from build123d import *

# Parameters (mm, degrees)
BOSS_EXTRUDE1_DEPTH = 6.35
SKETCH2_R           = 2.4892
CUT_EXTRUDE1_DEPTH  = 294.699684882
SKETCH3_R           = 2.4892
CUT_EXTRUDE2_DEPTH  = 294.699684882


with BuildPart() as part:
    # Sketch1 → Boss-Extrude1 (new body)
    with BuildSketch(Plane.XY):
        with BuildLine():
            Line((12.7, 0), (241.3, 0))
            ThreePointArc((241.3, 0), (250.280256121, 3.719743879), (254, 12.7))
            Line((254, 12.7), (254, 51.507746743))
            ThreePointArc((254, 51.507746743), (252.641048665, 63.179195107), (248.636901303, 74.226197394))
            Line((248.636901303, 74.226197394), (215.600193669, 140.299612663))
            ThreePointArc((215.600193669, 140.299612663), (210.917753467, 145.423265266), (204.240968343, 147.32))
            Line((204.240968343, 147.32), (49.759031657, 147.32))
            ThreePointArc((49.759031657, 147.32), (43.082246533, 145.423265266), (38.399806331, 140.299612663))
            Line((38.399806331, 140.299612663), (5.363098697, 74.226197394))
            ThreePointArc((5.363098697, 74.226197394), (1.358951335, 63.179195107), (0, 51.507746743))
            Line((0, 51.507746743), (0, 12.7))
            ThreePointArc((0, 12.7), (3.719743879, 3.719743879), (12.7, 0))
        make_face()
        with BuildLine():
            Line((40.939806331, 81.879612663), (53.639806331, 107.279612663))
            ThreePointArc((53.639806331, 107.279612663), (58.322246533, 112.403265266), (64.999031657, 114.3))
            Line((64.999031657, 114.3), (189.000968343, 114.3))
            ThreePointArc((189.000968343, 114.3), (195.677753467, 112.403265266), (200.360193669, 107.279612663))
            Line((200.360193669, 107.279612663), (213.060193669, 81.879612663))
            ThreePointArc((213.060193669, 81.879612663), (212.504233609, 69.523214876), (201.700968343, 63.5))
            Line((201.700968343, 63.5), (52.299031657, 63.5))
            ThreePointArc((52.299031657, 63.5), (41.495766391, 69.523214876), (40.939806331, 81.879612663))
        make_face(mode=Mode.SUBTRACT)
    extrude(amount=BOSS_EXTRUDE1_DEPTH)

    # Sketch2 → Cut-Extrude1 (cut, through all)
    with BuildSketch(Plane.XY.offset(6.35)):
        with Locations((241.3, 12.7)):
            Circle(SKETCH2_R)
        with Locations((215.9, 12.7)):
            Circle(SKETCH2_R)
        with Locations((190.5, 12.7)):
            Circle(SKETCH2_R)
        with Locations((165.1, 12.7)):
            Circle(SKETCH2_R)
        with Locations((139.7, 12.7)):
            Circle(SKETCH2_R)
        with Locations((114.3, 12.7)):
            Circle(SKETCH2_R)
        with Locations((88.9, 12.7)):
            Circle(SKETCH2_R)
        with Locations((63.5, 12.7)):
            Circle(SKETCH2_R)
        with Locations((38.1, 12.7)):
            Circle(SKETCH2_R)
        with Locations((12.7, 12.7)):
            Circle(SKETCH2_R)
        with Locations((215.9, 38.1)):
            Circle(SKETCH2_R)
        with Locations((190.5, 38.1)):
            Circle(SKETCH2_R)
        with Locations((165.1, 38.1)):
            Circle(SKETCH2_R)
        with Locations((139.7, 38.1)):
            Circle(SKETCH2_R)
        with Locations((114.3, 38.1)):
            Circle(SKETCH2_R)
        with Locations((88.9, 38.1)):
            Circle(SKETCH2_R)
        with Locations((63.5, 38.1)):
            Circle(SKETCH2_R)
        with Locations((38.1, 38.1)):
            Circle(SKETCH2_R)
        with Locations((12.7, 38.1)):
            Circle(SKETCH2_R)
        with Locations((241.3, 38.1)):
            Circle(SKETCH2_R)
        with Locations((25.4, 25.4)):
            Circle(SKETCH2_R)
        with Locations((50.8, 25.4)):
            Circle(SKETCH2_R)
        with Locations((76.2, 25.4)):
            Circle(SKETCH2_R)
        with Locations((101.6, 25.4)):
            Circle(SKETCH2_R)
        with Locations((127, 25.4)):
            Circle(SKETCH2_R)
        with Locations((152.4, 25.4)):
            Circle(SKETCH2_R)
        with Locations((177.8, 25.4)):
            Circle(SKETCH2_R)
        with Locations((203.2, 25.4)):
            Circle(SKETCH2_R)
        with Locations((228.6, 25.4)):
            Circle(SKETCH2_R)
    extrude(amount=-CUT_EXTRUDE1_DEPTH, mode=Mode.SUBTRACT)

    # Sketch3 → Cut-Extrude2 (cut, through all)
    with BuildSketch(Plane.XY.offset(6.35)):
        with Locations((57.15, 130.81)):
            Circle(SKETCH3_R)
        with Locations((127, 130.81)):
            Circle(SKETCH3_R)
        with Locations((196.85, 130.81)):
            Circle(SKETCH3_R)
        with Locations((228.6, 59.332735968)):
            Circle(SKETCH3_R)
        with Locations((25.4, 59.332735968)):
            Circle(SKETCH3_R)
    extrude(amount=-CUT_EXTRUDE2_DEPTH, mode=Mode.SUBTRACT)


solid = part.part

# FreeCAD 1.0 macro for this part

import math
import FreeCAD as App
import Part
import Sketcher
Q = App.Units.Quantity

doc = App.newDocument("Part")
body = doc.addObject("PartDesign::Body", "Body")

sketch1 = body.newObject("Sketcher::SketchObject", "Sketch")
sketch1.AttachmentSupport = (doc.getObject("XY_Plane"), [""])
sketch1.MapMode = "FlatFace"
sketch1.addGeometry([
    Part.LineSegment(App.Vector(13, 0, 0), App.Vector(241, 0, 0)),
    Part.ArcOfCircle(Part.Circle(App.Vector(241, 13, 0), App.Vector(0, 0, 1), 13), math.radians(-90), math.radians(0)),
    Part.LineSegment(App.Vector(254, 13, 0), App.Vector(254, 52, 0)),
    Part.ArcOfCircle(Part.Circle(App.Vector(203, 52, 0), App.Vector(0, 0, 1), 51), math.radians(0), math.radians(27)),
    Part.LineSegment(App.Vector(249, 74, 0), App.Vector(216, 140, 0)),
    Part.ArcOfCircle(Part.Circle(App.Vector(204, 135, 0), App.Vector(0, 0, 1), 13), math.radians(27), math.radians(90)),
    Part.LineSegment(App.Vector(204, 147, 0), App.Vector(50, 147, 0)),
    Part.ArcOfCircle(Part.Circle(App.Vector(50, 135, 0), App.Vector(0, 0, 1), 13), math.radians(90), math.radians(153)),
    Part.LineSegment(App.Vector(38, 140, 0), App.Vector(5, 74, 0)),
    Part.ArcOfCircle(Part.Circle(App.Vector(51, 52, 0), App.Vector(0, 0, 1), 51), math.radians(153), math.radians(180)),
    Part.LineSegment(App.Vector(0, 52, 0), App.Vector(0, 13, 0)),
    Part.ArcOfCircle(Part.Circle(App.Vector(13, 13, 0), App.Vector(0, 0, 1), 13), math.radians(180), math.radians(270)),
    Part.ArcOfCircle(Part.Circle(App.Vector(52, 76, 0), App.Vector(0, 0, 1), 13), math.radians(153), math.radians(270)),
    Part.LineSegment(App.Vector(41, 82, 0), App.Vector(54, 107, 0)),
    Part.ArcOfCircle(Part.Circle(App.Vector(65, 102, 0), App.Vector(0, 0, 1), 13), math.radians(90), math.radians(153)),
    Part.LineSegment(App.Vector(65, 114, 0), App.Vector(189, 114, 0)),
    Part.ArcOfCircle(Part.Circle(App.Vector(189, 102, 0), App.Vector(0, 0, 1), 13), math.radians(27), math.radians(90)),
    Part.LineSegment(App.Vector(200, 107, 0), App.Vector(213, 82, 0)),
    Part.ArcOfCircle(Part.Circle(App.Vector(202, 76, 0), App.Vector(0, 0, 1), 13), math.radians(-90), math.radians(27)),
    Part.LineSegment(App.Vector(202, 64, 0), App.Vector(52, 64, 0)),
], False)
sketch1.addConstraint([
    Sketcher.Constraint("Tangent", 0, 2, 1, 1),
    Sketcher.Constraint("Tangent", 1, 2, 2, 1),
    Sketcher.Constraint("Tangent", 2, 2, 3, 1),
    Sketcher.Constraint("Tangent", 3, 2, 4, 1),
    Sketcher.Constraint("Tangent", 4, 2, 5, 1),
    Sketcher.Constraint("Tangent", 5, 2, 6, 1),
    Sketcher.Constraint("Tangent", 6, 2, 7, 1),
    Sketcher.Constraint("Tangent", 7, 2, 8, 1),
    Sketcher.Constraint("Tangent", 8, 2, 9, 1),
    Sketcher.Constraint("Tangent", 9, 2, 10, 1),
    Sketcher.Constraint("Tangent", 10, 2, 11, 1),
    Sketcher.Constraint("Tangent", 11, 2, 0, 1),
    Sketcher.Constraint("Tangent", 12, 1, 13, 1),
    Sketcher.Constraint("Tangent", 13, 2, 14, 2),
    Sketcher.Constraint("Tangent", 14, 1, 15, 1),
    Sketcher.Constraint("Tangent", 15, 2, 16, 2),
    Sketcher.Constraint("Tangent", 16, 1, 17, 1),
    Sketcher.Constraint("Tangent", 17, 2, 18, 2),
    Sketcher.Constraint("Tangent", 18, 1, 19, 1),
    Sketcher.Constraint("Tangent", 19, 2, 12, 2),
    Sketcher.Constraint("Horizontal", 0),
    Sketcher.Constraint("Vertical", 2),
    Sketcher.Constraint("Horizontal", 6),
    Sketcher.Constraint("Vertical", 10),
    Sketcher.Constraint("Horizontal", 15),
    Sketcher.Constraint("Horizontal", 19),
    Sketcher.Constraint("Equal", 1, 5),
    Sketcher.Constraint("Equal", 5, 7),
    Sketcher.Constraint("Equal", 3, 9),
    Sketcher.Constraint("Equal", 7, 11),
    Sketcher.Constraint("Equal", 11, 12),
    Sketcher.Constraint("Equal", 12, 14),
    Sketcher.Constraint("Equal", 14, 16),
    Sketcher.Constraint("Equal", 16, 18),
    Sketcher.Constraint("PointOnObject", 0, 2, -1),
    Sketcher.Constraint("PointOnObject", 9, 2, -2),
    Sketcher.Constraint("Parallel", 8, 13),
    Sketcher.Constraint("Parallel", 4, 17),
    Sketcher.Constraint("Horizontal", 3, 3, 9, 3),
    Sketcher.Constraint("Horizontal", 4, 2, 7, 2),
    Sketcher.Constraint("Radius", 3, Q("2 in")),
    Sketcher.Constraint("Radius", 1, Q("0.5 in")),
    Sketcher.Constraint("DistanceX", 0, 1, 0, 2, Q("9 in")),
    Sketcher.Constraint("DistanceY", -1, 1, 12, 3, Q("3 in")),
    Sketcher.Constraint("DistanceY", -1, 1, 14, 3, Q("4 in")),
    Sketcher.Constraint("DistanceY", -1, 1, 5, 3, Q("5.3 in")),
    Sketcher.Constraint("DistanceX", 7, 3, 12, 3, Q("0.1 in")),
    Sketcher.Constraint("DistanceX", 12, 3, 14, 3, Q("0.5 in")),
    Sketcher.Constraint("DistanceX", 16, 3, 5, 3, Q("0.6 in")),
    Sketcher.Constraint("DistanceX", 6, 2, 6, 1, Q("154.481937 mm")),
])
pad1 = body.newObject("PartDesign::Pad", "Pad")
pad1.Profile = sketch1
pad1.Length = Q("0.25 in")

sketch2 = body.newObject("Sketcher::SketchObject", "Sketch001")
sketch2.AttachmentSupport = (doc.getObject("XY_Plane"), [""])
sketch2.MapMode = "FlatFace"
sketch2.AttachmentOffset = App.Placement(App.Vector(0, 0, 0.25 * 25.4), App.Rotation())
sketch2.addGeometry([
    Part.Circle(App.Vector(241.3, 12.7, 0), App.Vector(0, 0, 1), 2.5),
    Part.Circle(App.Vector(215.9, 12.7, 0), App.Vector(0, 0, 1), 2.5),
    Part.Circle(App.Vector(190.5, 12.7, 0), App.Vector(0, 0, 1), 2.5),
    Part.Circle(App.Vector(165.1, 12.7, 0), App.Vector(0, 0, 1), 2.5),
    Part.Circle(App.Vector(139.7, 12.7, 0), App.Vector(0, 0, 1), 2.5),
    Part.Circle(App.Vector(114.3, 12.7, 0), App.Vector(0, 0, 1), 2.5),
    Part.Circle(App.Vector(88.9, 12.7, 0), App.Vector(0, 0, 1), 2.5),
    Part.Circle(App.Vector(63.5, 12.7, 0), App.Vector(0, 0, 1), 2.5),
    Part.Circle(App.Vector(38.1, 12.7, 0), App.Vector(0, 0, 1), 2.5),
    Part.Circle(App.Vector(12.7, 12.7, 0), App.Vector(0, 0, 1), 2.5),
    Part.Circle(App.Vector(215.9, 38.1, 0), App.Vector(0, 0, 1), 2.5),
    Part.Circle(App.Vector(190.5, 38.1, 0), App.Vector(0, 0, 1), 2.5),
    Part.Circle(App.Vector(165.1, 38.1, 0), App.Vector(0, 0, 1), 2.5),
    Part.Circle(App.Vector(139.7, 38.1, 0), App.Vector(0, 0, 1), 2.5),
    Part.Circle(App.Vector(114.3, 38.1, 0), App.Vector(0, 0, 1), 2.5),
    Part.Circle(App.Vector(88.9, 38.1, 0), App.Vector(0, 0, 1), 2.5),
    Part.Circle(App.Vector(63.5, 38.1, 0), App.Vector(0, 0, 1), 2.5),
    Part.Circle(App.Vector(38.1, 38.1, 0), App.Vector(0, 0, 1), 2.5),
    Part.Circle(App.Vector(12.7, 38.1, 0), App.Vector(0, 0, 1), 2.5),
    Part.Circle(App.Vector(241.3, 38.1, 0), App.Vector(0, 0, 1), 2.5),
    Part.Circle(App.Vector(25.4, 25.4, 0), App.Vector(0, 0, 1), 2.5),
    Part.Circle(App.Vector(50.8, 25.4, 0), App.Vector(0, 0, 1), 2.5),
    Part.Circle(App.Vector(76.2, 25.4, 0), App.Vector(0, 0, 1), 2.5),
    Part.Circle(App.Vector(101.6, 25.4, 0), App.Vector(0, 0, 1), 2.5),
    Part.Circle(App.Vector(127, 25.4, 0), App.Vector(0, 0, 1), 2.5),
    Part.Circle(App.Vector(152.4, 25.4, 0), App.Vector(0, 0, 1), 2.5),
    Part.Circle(App.Vector(177.8, 25.4, 0), App.Vector(0, 0, 1), 2.5),
    Part.Circle(App.Vector(203.2, 25.4, 0), App.Vector(0, 0, 1), 2.5),
    Part.Circle(App.Vector(228.6, 25.4, 0), App.Vector(0, 0, 1), 2.5),
], False)
sketch2.addConstraint([
    Sketcher.Constraint("Equal", 0, 1),
    Sketcher.Constraint("Equal", 1, 2),
    Sketcher.Constraint("Equal", 2, 3),
    Sketcher.Constraint("Equal", 3, 4),
    Sketcher.Constraint("Equal", 4, 5),
    Sketcher.Constraint("Equal", 5, 6),
    Sketcher.Constraint("Equal", 6, 7),
    Sketcher.Constraint("Equal", 7, 8),
    Sketcher.Constraint("Equal", 8, 9),
    Sketcher.Constraint("Equal", 9, 10),
    Sketcher.Constraint("Equal", 10, 11),
    Sketcher.Constraint("Equal", 11, 12),
    Sketcher.Constraint("Equal", 12, 13),
    Sketcher.Constraint("Equal", 13, 14),
    Sketcher.Constraint("Equal", 14, 15),
    Sketcher.Constraint("Equal", 15, 16),
    Sketcher.Constraint("Equal", 16, 17),
    Sketcher.Constraint("Equal", 17, 18),
    Sketcher.Constraint("Equal", 18, 19),
    Sketcher.Constraint("Equal", 19, 20),
    Sketcher.Constraint("Equal", 20, 21),
    Sketcher.Constraint("Equal", 21, 22),
    Sketcher.Constraint("Equal", 22, 23),
    Sketcher.Constraint("Equal", 23, 24),
    Sketcher.Constraint("Equal", 24, 25),
    Sketcher.Constraint("Equal", 25, 26),
    Sketcher.Constraint("Equal", 26, 27),
    Sketcher.Constraint("Equal", 27, 28),
    Sketcher.Constraint("Horizontal", 0, 3, 1, 3),
    Sketcher.Constraint("Horizontal", 1, 3, 2, 3),
    Sketcher.Constraint("Horizontal", 2, 3, 3, 3),
    Sketcher.Constraint("Horizontal", 3, 3, 4, 3),
    Sketcher.Constraint("Horizontal", 4, 3, 5, 3),
    Sketcher.Constraint("Horizontal", 5, 3, 6, 3),
    Sketcher.Constraint("Horizontal", 6, 3, 7, 3),
    Sketcher.Constraint("Horizontal", 7, 3, 8, 3),
    Sketcher.Constraint("Horizontal", 8, 3, 9, 3),
    Sketcher.Constraint("Horizontal", 10, 3, 11, 3),
    Sketcher.Constraint("Horizontal", 11, 3, 12, 3),
    Sketcher.Constraint("Horizontal", 12, 3, 13, 3),
    Sketcher.Constraint("Horizontal", 13, 3, 14, 3),
    Sketcher.Constraint("Horizontal", 14, 3, 15, 3),
    Sketcher.Constraint("Horizontal", 15, 3, 16, 3),
    Sketcher.Constraint("Horizontal", 16, 3, 17, 3),
    Sketcher.Constraint("Horizontal", 17, 3, 18, 3),
    Sketcher.Constraint("Horizontal", 18, 3, 19, 3),
    Sketcher.Constraint("Horizontal", 20, 3, 21, 3),
    Sketcher.Constraint("Horizontal", 21, 3, 22, 3),
    Sketcher.Constraint("Horizontal", 22, 3, 23, 3),
    Sketcher.Constraint("Horizontal", 23, 3, 24, 3),
    Sketcher.Constraint("Horizontal", 24, 3, 25, 3),
    Sketcher.Constraint("Horizontal", 25, 3, 26, 3),
    Sketcher.Constraint("Horizontal", 26, 3, 27, 3),
    Sketcher.Constraint("Horizontal", 27, 3, 28, 3),
    Sketcher.Constraint("Vertical", 1, 3, 10, 3),
    Sketcher.Constraint("Vertical", 2, 3, 11, 3),
    Sketcher.Constraint("Vertical", 3, 3, 12, 3),
    Sketcher.Constraint("Vertical", 4, 3, 13, 3),
    Sketcher.Constraint("Vertical", 5, 3, 14, 3),
    Sketcher.Constraint("Vertical", 6, 3, 15, 3),
    Sketcher.Constraint("Vertical", 7, 3, 16, 3),
    Sketcher.Constraint("Vertical", 8, 3, 17, 3),
    Sketcher.Constraint("Vertical", 9, 3, 18, 3),
    Sketcher.Constraint("Vertical", 0, 3, 19, 3),
    Sketcher.Constraint("Diameter", 0, Q("0.196 in")),
    Sketcher.Constraint("DistanceX", -1, 1, 20, 3, Q("1 in")),
    Sketcher.Constraint("DistanceY", -1, 1, 20, 3, Q("1 in")),
    Sketcher.Constraint("DistanceX", -1, 1, 21, 3, Q("2 in")),
    Sketcher.Constraint("DistanceX", -1, 1, 22, 3, Q("3 in")),
    Sketcher.Constraint("DistanceX", -1, 1, 23, 3, Q("4 in")),
    Sketcher.Constraint("DistanceX", -1, 1, 24, 3, Q("5 in")),
    Sketcher.Constraint("DistanceX", -1, 1, 25, 3, Q("6 in")),
    Sketcher.Constraint("DistanceX", -1, 1, 26, 3, Q("7 in")),
    Sketcher.Constraint("DistanceX", -1, 1, 27, 3, Q("8 in")),
    Sketcher.Constraint("DistanceX", -1, 1, 28, 3, Q("9 in")),
    Sketcher.Constraint("DistanceX", 1, 3, 0, 3, Q("1 in")),
    Sketcher.Constraint("DistanceX", 2, 3, 1, 3, Q("1 in")),
    Sketcher.Constraint("DistanceX", 3, 3, 2, 3, Q("1 in")),
    Sketcher.Constraint("DistanceX", 4, 3, 3, 3, Q("1 in")),
    Sketcher.Constraint("DistanceX", 5, 3, 4, 3, Q("1 in")),
    Sketcher.Constraint("DistanceX", 6, 3, 5, 3, Q("1 in")),
    Sketcher.Constraint("DistanceX", 7, 3, 6, 3, Q("1 in")),
    Sketcher.Constraint("DistanceX", 8, 3, 7, 3, Q("1 in")),
    Sketcher.Constraint("DistanceX", 9, 3, 8, 3, Q("1 in")),
    Sketcher.Constraint("DistanceY", 1, 3, 10, 3, Q("1 in")),
    Sketcher.Constraint("DistanceX", -1, 1, 0, 3, Q("9.5 in")),
    Sketcher.Constraint("DistanceY", -1, 1, 0, 3, Q("0.5 in")),
])
pocket1 = body.newObject("PartDesign::Pocket", "Pocket")
pocket1.Profile = sketch2
pocket1.Type = "ThroughAll"

sketch3 = body.newObject("Sketcher::SketchObject", "Sketch002")
sketch3.AttachmentSupport = (doc.getObject("XY_Plane"), [""])
sketch3.MapMode = "FlatFace"
sketch3.AttachmentOffset = App.Placement(App.Vector(0, 0, 0.25 * 25.4), App.Rotation())
sketch3.addGeometry([
    Part.Circle(App.Vector(57.1, 130.8, 0), App.Vector(0, 0, 1), 2.5),
    Part.Circle(App.Vector(127, 130.8, 0), App.Vector(0, 0, 1), 2.5),
    Part.Circle(App.Vector(196.8, 130.8, 0), App.Vector(0, 0, 1), 2.5),
    Part.Circle(App.Vector(228.6, 59.3, 0), App.Vector(0, 0, 1), 2.5),
    Part.Circle(App.Vector(25.4, 59.3, 0), App.Vector(0, 0, 1), 2.5),
], False)
sketch3.addConstraint([
    Sketcher.Constraint("Equal", 0, 1),
    Sketcher.Constraint("Equal", 1, 2),
    Sketcher.Constraint("Equal", 2, 3),
    Sketcher.Constraint("Equal", 3, 4),
    Sketcher.Constraint("Horizontal", 0, 3, 1, 3),
    Sketcher.Constraint("Horizontal", 1, 3, 2, 3),
    Sketcher.Constraint("Horizontal", 3, 3, 4, 3),
    Sketcher.Constraint("Diameter", 0, Q("0.196 in")),
    Sketcher.Constraint("DistanceX", -1, 1, 1, 3, Q("5 in")),
    Sketcher.Constraint("DistanceX", -1, 1, 3, 3, Q("9 in")),
    Sketcher.Constraint("DistanceX", -1, 1, 4, 3, Q("1 in")),
    Sketcher.Constraint("DistanceX", 0, 3, 2, 3, Q("5.5 in")),
    Sketcher.Constraint("DistanceX", -1, 1, 0, 3, Q("2.25 in")),
    Sketcher.Constraint("DistanceY", -1, 1, 0, 3, Q("5.15 in")),
    Sketcher.Constraint("DistanceY", -1, 1, 3, 3, Q("59.332736 mm")),
])
pocket2 = body.newObject("PartDesign::Pocket", "Pocket001")
pocket2.Profile = sketch3
pocket2.Type = "ThroughAll"

doc.recompute()
